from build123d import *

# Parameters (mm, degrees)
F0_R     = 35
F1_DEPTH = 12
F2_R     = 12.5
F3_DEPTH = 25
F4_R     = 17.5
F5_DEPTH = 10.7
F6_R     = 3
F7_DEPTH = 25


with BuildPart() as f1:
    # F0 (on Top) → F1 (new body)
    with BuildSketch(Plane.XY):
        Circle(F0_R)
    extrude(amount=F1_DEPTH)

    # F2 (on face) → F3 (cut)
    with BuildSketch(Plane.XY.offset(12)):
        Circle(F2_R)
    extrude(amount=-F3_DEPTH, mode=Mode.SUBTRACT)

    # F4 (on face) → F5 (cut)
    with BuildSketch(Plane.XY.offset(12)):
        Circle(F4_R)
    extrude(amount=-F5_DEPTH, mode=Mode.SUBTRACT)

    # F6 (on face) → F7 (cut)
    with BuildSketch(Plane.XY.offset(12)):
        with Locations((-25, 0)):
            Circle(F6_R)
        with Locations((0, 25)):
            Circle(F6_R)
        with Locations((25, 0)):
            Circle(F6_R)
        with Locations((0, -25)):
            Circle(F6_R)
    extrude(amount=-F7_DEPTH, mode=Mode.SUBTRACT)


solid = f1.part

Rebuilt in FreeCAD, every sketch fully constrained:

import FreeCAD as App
import Part
import Sketcher
from FreeCAD import Vector
Q = App.Units.Quantity

doc = App.newDocument("Part")
body = doc.addObject("PartDesign::Body", "Body")

sketch1 = doc.addObject("Sketcher::SketchObject", "Sketch")
body.addObject(sketch1)
sketch1.AttachmentSupport = (doc.XY_Plane, [""])
sketch1.MapMode = "FlatFace"
sketch1.addGeometry(Part.Circle(Vector(0, 0, 0), Vector(0, 0, 1), 35), False)
sketch1.addConstraint([
    Sketcher.Constraint("Coincident", 0, 3, -1, 1),
    Sketcher.Constraint("Diameter", 0, Q("70 mm")),
])
pad1 = doc.addObject("PartDesign::Pad", "Pad")
body.addObject(pad1)
pad1.Profile = sketch1
pad1.Length = 12

sketch2 = doc.addObject("Sketcher::SketchObject", "Sketch001")
body.addObject(sketch2)
sketch2.AttachmentSupport = (doc.XY_Plane, [""])
sketch2.MapMode = "FlatFace"
sketch2.AttachmentOffset = App.Placement(Vector(0, 0, 12), App.Rotation())
sketch2.addGeometry(Part.Circle(Vector(0, 0, 0), Vector(0, 0, 1), 12), False)
sketch2.addConstraint([
    Sketcher.Constraint("Coincident", 0, 3, -1, 1),
    Sketcher.Constraint("Diameter", 0, Q("25 mm")),
])
pocket1 = doc.addObject("PartDesign::Pocket", "Pocket")
body.addObject(pocket1)
pocket1.Profile = sketch2
pocket1.Length = 25

sketch3 = doc.addObject("Sketcher::SketchObject", "Sketch002")
body.addObject(sketch3)
sketch3.AttachmentSupport = (doc.XY_Plane, [""])
sketch3.MapMode = "FlatFace"
sketch3.AttachmentOffset = App.Placement(Vector(0, 0, 12), App.Rotation())
sketch3.addGeometry(Part.Circle(Vector(0, 0, 0), Vector(0, 0, 1), 18), False)
sketch3.addConstraint([
    Sketcher.Constraint("Coincident", 0, 3, -1, 1),
    Sketcher.Constraint("Diameter", 0, Q("35 mm")),
])
pocket2 = doc.addObject("PartDesign::Pocket", "Pocket001")
body.addObject(pocket2)
pocket2.Profile = sketch3
pocket2.Length = 10.7

sketch4 = doc.addObject("Sketcher::SketchObject", "Sketch003")
body.addObject(sketch4)
sketch4.AttachmentSupport = (doc.XY_Plane, [""])
sketch4.MapMode = "FlatFace"
sketch4.AttachmentOffset = App.Placement(Vector(0, 0, 12), App.Rotation())
sketch4.addGeometry([
    Part.Circle(Vector(-25, 0, 0), Vector(0, 0, 1), 3),
    Part.Circle(Vector(0, 25, 0), Vector(0, 0, 1), 3),
    Part.Circle(Vector(25, 0, 0), Vector(0, 0, 1), 3),
    Part.Circle(Vector(0, -25, 0), Vector(0, 0, 1), 3),
], False)
sketch4.addConstraint([
    Sketcher.Constraint("Equal", 0, 1),
    Sketcher.Constraint("Equal", 1, 2),
    Sketcher.Constraint("Equal", 2, 3),
    Sketcher.Constraint("Symmetric", 0, 3, 2, 3, -1, 1),
    Sketcher.Constraint("Symmetric", 1, 3, 3, 3, -1, 1),
    Sketcher.Constraint("PointOnObject", 0, 3, -1),
    Sketcher.Constraint("PointOnObject", 1, 3, -2),
    Sketcher.Constraint("Diameter", 0, Q("6 mm")),
    Sketcher.Constraint("DistanceX", 0, 3, -1, 1, Q("25 mm")),
    Sketcher.Constraint("DistanceY", -1, 1, 1, 3, Q("25 mm")),
])
pocket3 = doc.addObject("PartDesign::Pocket", "Pocket002")
body.addObject(pocket3)
pocket3.Profile = sketch4
pocket3.Length = 25

doc.recompute()
